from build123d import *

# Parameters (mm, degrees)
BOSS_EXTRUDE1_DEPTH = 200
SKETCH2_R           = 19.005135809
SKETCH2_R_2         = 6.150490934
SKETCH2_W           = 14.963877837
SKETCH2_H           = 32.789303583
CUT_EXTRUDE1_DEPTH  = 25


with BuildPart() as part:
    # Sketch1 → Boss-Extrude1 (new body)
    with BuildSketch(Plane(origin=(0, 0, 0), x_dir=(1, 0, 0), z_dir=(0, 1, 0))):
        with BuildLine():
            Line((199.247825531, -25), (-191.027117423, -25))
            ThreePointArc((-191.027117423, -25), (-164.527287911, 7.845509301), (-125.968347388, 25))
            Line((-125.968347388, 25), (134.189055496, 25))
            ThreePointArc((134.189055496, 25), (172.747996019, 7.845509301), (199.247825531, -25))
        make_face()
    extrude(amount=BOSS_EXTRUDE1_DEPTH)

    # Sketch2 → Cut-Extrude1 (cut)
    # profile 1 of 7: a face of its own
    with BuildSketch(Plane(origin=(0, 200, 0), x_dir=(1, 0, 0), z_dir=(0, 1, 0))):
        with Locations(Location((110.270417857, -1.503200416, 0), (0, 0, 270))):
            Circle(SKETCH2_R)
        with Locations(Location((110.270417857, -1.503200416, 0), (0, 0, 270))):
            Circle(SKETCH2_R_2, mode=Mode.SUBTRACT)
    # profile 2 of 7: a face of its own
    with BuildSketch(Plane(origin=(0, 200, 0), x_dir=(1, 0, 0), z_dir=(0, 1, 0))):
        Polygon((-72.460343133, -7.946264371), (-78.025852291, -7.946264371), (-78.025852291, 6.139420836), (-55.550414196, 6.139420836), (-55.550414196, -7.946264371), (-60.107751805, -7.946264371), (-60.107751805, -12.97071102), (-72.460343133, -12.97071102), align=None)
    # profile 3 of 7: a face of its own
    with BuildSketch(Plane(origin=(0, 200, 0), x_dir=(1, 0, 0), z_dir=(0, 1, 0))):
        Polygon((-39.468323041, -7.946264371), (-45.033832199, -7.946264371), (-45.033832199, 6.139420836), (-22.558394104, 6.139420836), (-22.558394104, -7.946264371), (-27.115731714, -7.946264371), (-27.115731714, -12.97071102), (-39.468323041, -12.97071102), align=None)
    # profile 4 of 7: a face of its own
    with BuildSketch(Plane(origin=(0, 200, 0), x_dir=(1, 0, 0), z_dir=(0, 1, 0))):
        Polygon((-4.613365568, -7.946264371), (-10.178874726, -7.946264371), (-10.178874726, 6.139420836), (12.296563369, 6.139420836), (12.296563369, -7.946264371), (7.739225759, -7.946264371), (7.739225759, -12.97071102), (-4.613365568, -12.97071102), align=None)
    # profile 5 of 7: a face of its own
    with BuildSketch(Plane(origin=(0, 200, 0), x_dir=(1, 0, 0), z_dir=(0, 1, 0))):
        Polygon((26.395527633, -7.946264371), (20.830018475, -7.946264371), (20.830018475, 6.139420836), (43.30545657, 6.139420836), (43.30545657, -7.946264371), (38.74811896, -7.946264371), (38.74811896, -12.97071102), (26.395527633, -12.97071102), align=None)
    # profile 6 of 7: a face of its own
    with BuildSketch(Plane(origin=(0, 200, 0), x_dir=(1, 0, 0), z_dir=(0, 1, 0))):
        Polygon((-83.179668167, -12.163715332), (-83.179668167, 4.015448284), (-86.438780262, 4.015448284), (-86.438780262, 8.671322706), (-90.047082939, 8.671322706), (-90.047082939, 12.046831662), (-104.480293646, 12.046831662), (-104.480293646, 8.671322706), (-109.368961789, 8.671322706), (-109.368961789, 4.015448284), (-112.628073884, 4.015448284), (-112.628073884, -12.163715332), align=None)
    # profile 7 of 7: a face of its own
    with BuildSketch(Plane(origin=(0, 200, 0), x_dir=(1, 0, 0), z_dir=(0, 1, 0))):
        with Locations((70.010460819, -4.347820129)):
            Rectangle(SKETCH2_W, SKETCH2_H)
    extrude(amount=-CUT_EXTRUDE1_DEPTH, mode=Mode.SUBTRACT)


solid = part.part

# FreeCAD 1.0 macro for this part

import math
import FreeCAD as App
import Part
import Sketcher
from FreeCAD import Vector

doc = App.newDocument("Part")
body = doc.addObject("PartDesign::Body", "Body")

# Sketch on XZ plane
sketch1 = body.newObject("Sketcher::SketchObject", "Sketch")
sketch1.AttachmentSupport = (doc.getObject("XZ_Plane"), [""])
sketch1.MapMode = "FlatFace"
sketch1.addGeometry([
    Part.LineSegment(Vector(-191, 25, 0), Vector(199, 25, 0)),
    Part.ArcOfCircle(Part.Circle(Vector(118, 64, 0), Vector(0, 0, 1), 90), math.radians(-80), math.radians(-25)),
    Part.LineSegment(Vector(134, -25, 0), Vector(-126, -25, 0)),
    Part.ArcOfCircle(Part.Circle(Vector(-110, 64, 0), Vector(0, 0, 1), 90), math.radians(-155), math.radians(-100)),
], False)
sketch1.addConstraint([
    Sketcher.Constraint("Coincident", 0, 2, 1, 2),
    Sketcher.Constraint("Coincident", 1, 1, 2, 1),
    Sketcher.Constraint("Coincident", 2, 2, 3, 2),
    Sketcher.Constraint("Coincident", 3, 1, 0, 1),
    Sketcher.Constraint("Horizontal", 0),
    Sketcher.Constraint("Horizontal", 2),
    Sketcher.Constraint("Equal", 1, 3),
    Sketcher.Constraint("Horizontal", 1, 3, 3, 3),
    Sketcher.Constraint("Radius", 1, 90.0),
    Sketcher.Constraint("DistanceY", -1, 1, 0, 2, 25.0),
    Sketcher.Constraint("DistanceY", 1, 1, -1, 1, 25.0),
    Sketcher.Constraint("DistanceX", 0, 1, 0, 2, 390.274943),
    Sketcher.Constraint("DistanceX", 2, 2, 2, 1, 260.157403),
    Sketcher.Constraint("DistanceX", -1, 1, 1, 3, 117.905186),
])
pad1 = body.newObject("PartDesign::Pad", "Pad")
pad1.Profile = sketch1
pad1.Length = 200
pad1.Reversed = True

# Sketch on XZ plane
sketch2 = body.newObject("Sketcher::SketchObject", "Sketch001")
sketch2.AttachmentSupport = (doc.getObject("XZ_Plane"), [""])
sketch2.MapMode = "FlatFace"
sketch2.AttachmentOffset = App.Placement(Vector(0, 0, -200), App.Rotation())
sketch2.addGeometry([
    Part.Circle(Vector(110.3, 1.5, 0), Vector(0, 0, 1), 19),  # 0
    Part.Circle(Vector(110.3, 1.5, 0), Vector(0, 0, 1), 6.2),  # 1
    Part.LineSegment(Vector(-78, 7.9, 0), Vector(-72.5, 7.9, 0)),  # 2
    Part.LineSegment(Vector(-72.5, 7.9, 0), Vector(-72.5, 13, 0)),  # 3
    Part.LineSegment(Vector(-72.5, 13, 0), Vector(-60.1, 13, 0)),  # 4
    Part.LineSegment(Vector(-60.1, 13, 0), Vector(-60.1, 7.9, 0)),  # 5
    Part.LineSegment(Vector(-60.1, 7.9, 0), Vector(-55.6, 7.9, 0)),  # 6
    Part.LineSegment(Vector(-55.6, 7.9, 0), Vector(-55.6, -6.1, 0)),  # 7
    Part.LineSegment(Vector(-55.6, -6.1, 0), Vector(-78, -6.1, 0)),  # 8
    Part.LineSegment(Vector(-78, -6.1, 0), Vector(-78, 7.9, 0)),  # 9
    Part.LineSegment(Vector(-45, 7.9, 0), Vector(-39.5, 7.9, 0)),  # 10
    Part.LineSegment(Vector(-39.5, 7.9, 0), Vector(-39.5, 13, 0)),  # 11
    Part.LineSegment(Vector(-39.5, 13, 0), Vector(-27.1, 13, 0)),  # 12
    Part.LineSegment(Vector(-27.1, 13, 0), Vector(-27.1, 7.9, 0)),  # 13
    Part.LineSegment(Vector(-27.1, 7.9, 0), Vector(-22.6, 7.9, 0)),  # 14
    Part.LineSegment(Vector(-22.6, 7.9, 0), Vector(-22.6, -6.1, 0)),  # 15
    Part.LineSegment(Vector(-22.6, -6.1, 0), Vector(-45, -6.1, 0)),  # 16
    Part.LineSegment(Vector(-45, -6.1, 0), Vector(-45, 7.9, 0)),  # 17
    Part.LineSegment(Vector(-10.2, 7.9, 0), Vector(-4.6, 7.9, 0)),  # 18
    Part.LineSegment(Vector(-4.6, 7.9, 0), Vector(-4.6, 13, 0)),  # 19
    Part.LineSegment(Vector(-4.6, 13, 0), Vector(7.7, 13, 0)),  # 20
    Part.LineSegment(Vector(7.7, 13, 0), Vector(7.7, 7.9, 0)),  # 21
    Part.LineSegment(Vector(7.7, 7.9, 0), Vector(12.3, 7.9, 0)),  # 22
    Part.LineSegment(Vector(12.3, 7.9, 0), Vector(12.3, -6.1, 0)),  # 23
    Part.LineSegment(Vector(12.3, -6.1, 0), Vector(-10.2, -6.1, 0)),  # 24
    Part.LineSegment(Vector(-10.2, -6.1, 0), Vector(-10.2, 7.9, 0)),  # 25
    Part.LineSegment(Vector(20.8, 7.9, 0), Vector(26.4, 7.9, 0)),  # 26
    Part.LineSegment(Vector(26.4, 7.9, 0), Vector(26.4, 13, 0)),  # 27
    Part.LineSegment(Vector(26.4, 13, 0), Vector(38.7, 13, 0)),  # 28
    Part.LineSegment(Vector(38.7, 13, 0), Vector(38.7, 7.9, 0)),  # 29
    Part.LineSegment(Vector(38.7, 7.9, 0), Vector(43.3, 7.9, 0)),  # 30
    Part.LineSegment(Vector(43.3, 7.9, 0), Vector(43.3, -6.1, 0)),  # 31
    Part.LineSegment(Vector(43.3, -6.1, 0), Vector(20.8, -6.1, 0)),  # 32
    Part.LineSegment(Vector(20.8, -6.1, 0), Vector(20.8, 7.9, 0)),  # 33
    Part.LineSegment(Vector(-83.2, 12.2, 0), Vector(-83.2, -4, 0)),  # 34
    Part.LineSegment(Vector(-83.2, -4, 0), Vector(-86.4, -4, 0)),  # 35
    Part.LineSegment(Vector(-86.4, -4, 0), Vector(-86.4, -8.7, 0)),  # 36
    Part.LineSegment(Vector(-86.4, -8.7, 0), Vector(-90, -8.7, 0)),  # 37
    Part.LineSegment(Vector(-90, -8.7, 0), Vector(-90, -12, 0)),  # 38
    Part.LineSegment(Vector(-90, -12, 0), Vector(-104.5, -12, 0)),  # 39
    Part.LineSegment(Vector(-104.5, -12, 0), Vector(-104.5, -8.7, 0)),  # 40
    Part.LineSegment(Vector(-104.5, -8.7, 0), Vector(-109.4, -8.7, 0)),  # 41
    Part.LineSegment(Vector(-109.4, -8.7, 0), Vector(-109.4, -4, 0)),  # 42
    Part.LineSegment(Vector(-109.4, -4, 0), Vector(-112.6, -4, 0)),  # 43
    Part.LineSegment(Vector(-112.6, -4, 0), Vector(-112.6, 12.2, 0)),  # 44
    Part.LineSegment(Vector(-112.6, 12.2, 0), Vector(-83.2, 12.2, 0)),  # 45
    Part.LineSegment(Vector(62.5, -12, 0), Vector(62.5, 20.7, 0)),  # 46
    Part.LineSegment(Vector(62.5, 20.7, 0), Vector(77.5, 20.7, 0)),  # 47
    Part.LineSegment(Vector(77.5, 20.7, 0), Vector(77.5, -12, 0)),  # 48
    Part.LineSegment(Vector(77.5, -12, 0), Vector(62.5, -12, 0)),  # 49
], False)
sketch2.addConstraint([
    Sketcher.Constraint("Coincident", 2, 2, 3, 1),
    Sketcher.Constraint("Coincident", 3, 2, 4, 1),
    Sketcher.Constraint("Coincident", 4, 2, 5, 1),
    Sketcher.Constraint("Coincident", 5, 2, 6, 1),
    Sketcher.Constraint("Coincident", 6, 2, 7, 1),
    Sketcher.Constraint("Coincident", 7, 2, 8, 1),
    Sketcher.Constraint("Coincident", 8, 2, 9, 1),
    Sketcher.Constraint("Coincident", 9, 2, 2, 1),
    Sketcher.Constraint("Coincident", 10, 2, 11, 1),
    Sketcher.Constraint("Coincident", 11, 2, 12, 1),
    Sketcher.Constraint("Coincident", 12, 2, 13, 1),
    Sketcher.Constraint("Coincident", 13, 2, 14, 1),
    Sketcher.Constraint("Coincident", 14, 2, 15, 1),
    Sketcher.Constraint("Coincident", 15, 2, 16, 1),
    Sketcher.Constraint("Coincident", 16, 2, 17, 1),
    Sketcher.Constraint("Coincident", 17, 2, 10, 1),
    Sketcher.Constraint("Coincident", 18, 2, 19, 1),
    Sketcher.Constraint("Coincident", 19, 2, 20, 1),
    Sketcher.Constraint("Coincident", 20, 2, 21, 1),
    Sketcher.Constraint("Coincident", 21, 2, 22, 1),
    Sketcher.Constraint("Coincident", 22, 2, 23, 1),
    Sketcher.Constraint("Coincident", 23, 2, 24, 1),
    Sketcher.Constraint("Coincident", 24, 2, 25, 1),
    Sketcher.Constraint("Coincident", 25, 2, 18, 1),
    Sketcher.Constraint("Coincident", 26, 2, 27, 1),
    Sketcher.Constraint("Coincident", 27, 2, 28, 1),
    Sketcher.Constraint("Coincident", 28, 2, 29, 1),
    Sketcher.Constraint("Coincident", 29, 2, 30, 1),
    Sketcher.Constraint("Coincident", 30, 2, 31, 1),
    Sketcher.Constraint("Coincident", 31, 2, 32, 1),
    Sketcher.Constraint("Coincident", 32, 2, 33, 1),
    Sketcher.Constraint("Coincident", 33, 2, 26, 1),
    Sketcher.Constraint("Coincident", 34, 2, 35, 1),
    Sketcher.Constraint("Coincident", 35, 2, 36, 1),
    Sketcher.Constraint("Coincident", 36, 2, 37, 1),
    Sketcher.Constraint("Coincident", 37, 2, 38, 1),
    Sketcher.Constraint("Coincident", 38, 2, 39, 1),
    Sketcher.Constraint("Coincident", 39, 2, 40, 1),
    Sketcher.Constraint("Coincident", 40, 2, 41, 1),
    Sketcher.Constraint("Coincident", 41, 2, 42, 1),
    Sketcher.Constraint("Coincident", 42, 2, 43, 1),
    Sketcher.Constraint("Coincident", 43, 2, 44, 1),
    Sketcher.Constraint("Coincident", 44, 2, 45, 1),
    Sketcher.Constraint("Coincident", 45, 2, 34, 1),
    Sketcher.Constraint("Coincident", 46, 2, 47, 1),
    Sketcher.Constraint("Coincident", 47, 2, 48, 1),
    Sketcher.Constraint("Coincident", 48, 2, 49, 1),
    Sketcher.Constraint("Coincident", 49, 2, 46, 1),
    Sketcher.Constraint("Horizontal", 2),
    Sketcher.Constraint("Vertical", 3),
    Sketcher.Constraint("Horizontal", 4),
    Sketcher.Constraint("Vertical", 5),
    Sketcher.Constraint("Horizontal", 6),
    Sketcher.Constraint("Vertical", 7),
    Sketcher.Constraint("Horizontal", 8),
    Sketcher.Constraint("Vertical", 9),
    Sketcher.Constraint("Horizontal", 10),
    Sketcher.Constraint("Vertical", 11),
    Sketcher.Constraint("Horizontal", 12),
    Sketcher.Constraint("Vertical", 13),
    Sketcher.Constraint("Horizontal", 14),
    Sketcher.Constraint("Vertical", 15),
    Sketcher.Constraint("Horizontal", 16),
    Sketcher.Constraint("Vertical", 17),
    Sketcher.Constraint("Horizontal", 18),
    Sketcher.Constraint("Vertical", 19),
    Sketcher.Constraint("Horizontal", 20),
    Sketcher.Constraint("Vertical", 21),
    Sketcher.Constraint("Horizontal", 22),
    Sketcher.Constraint("Vertical", 23),
    Sketcher.Constraint("Horizontal", 24),
    Sketcher.Constraint("Vertical", 25),
    Sketcher.Constraint("Horizontal", 26),
    Sketcher.Constraint("Vertical", 27),
    Sketcher.Constraint("Horizontal", 28),
    Sketcher.Constraint("Vertical", 29),
    Sketcher.Constraint("Horizontal", 30),
    Sketcher.Constraint("Vertical", 31),
    Sketcher.Constraint("Horizontal", 32),
    Sketcher.Constraint("Vertical", 33),
    Sketcher.Constraint("Vertical", 34),
    Sketcher.Constraint("Horizontal", 35),
    Sketcher.Constraint("Vertical", 36),
    Sketcher.Constraint("Horizontal", 37),
    Sketcher.Constraint("Vertical", 38),
    Sketcher.Constraint("Horizontal", 39),
    Sketcher.Constraint("Vertical", 40),
    Sketcher.Constraint("Horizontal", 41),
    Sketcher.Constraint("Vertical", 42),
    Sketcher.Constraint("Horizontal", 43),
    Sketcher.Constraint("Vertical", 44),
    Sketcher.Constraint("Horizontal", 45),
    Sketcher.Constraint("Vertical", 46),
    Sketcher.Constraint("Horizontal", 47),
    Sketcher.Constraint("Vertical", 48),
    Sketcher.Constraint("Horizontal", 49),
    Sketcher.Constraint("Coincident", 1, 3, 0, 3),
    Sketcher.Constraint("Horizontal", 2, 2, 5, 2),
    Sketcher.Constraint("Horizontal", 9, 2, 10, 2),
    Sketcher.Constraint("Horizontal", 4, 2, 11, 2),
    Sketcher.Constraint("Horizontal", 10, 2, 13, 2),
    Sketcher.Constraint("Horizontal", 8, 2, 15, 2),
    Sketcher.Constraint("Horizontal", 17, 2, 18, 2),
    Sketcher.Constraint("Horizontal", 12, 2, 19, 2),
    Sketcher.Constraint("Horizontal", 18, 2, 21, 2),
    Sketcher.Constraint("Horizontal", 16, 2, 23, 2),
    Sketcher.Constraint("Horizontal", 25, 2, 26, 2),
    Sketcher.Constraint("Horizontal", 20, 2, 27, 2),
    Sketcher.Constraint("Horizontal", 26, 2, 29, 2),
    Sketcher.Constraint("Horizontal", 24, 2, 31, 2),
    Sketcher.Constraint("Horizontal", 37, 2, 40, 2),
    Sketcher.Constraint("Horizontal", 35, 2, 42, 2),
    Sketcher.Constraint("Horizontal", 39, 2, 48, 2),
    Sketcher.Constraint("Equal", 2, 10),
    Sketcher.Constraint("Equal", 4, 12),
    Sketcher.Constraint("Equal", 6, 14),
    Sketcher.Constraint("Equal", 10, 18),
    Sketcher.Constraint("Equal", 12, 20),
    Sketcher.Constraint("Equal", 14, 22),
    Sketcher.Constraint("Equal", 18, 26),
    Sketcher.Constraint("Equal", 20, 28),
    Sketcher.Constraint("Equal", 22, 30),
    Sketcher.Constraint("Equal", 35, 43),
    Sketcher.Constraint("Diameter", 0, 38.010272),
    Sketcher.Constraint("Diameter", 1, 12.300982),
    Sketcher.Constraint("DistanceX", 2, 1, 2, 2, 5.565509),
    Sketcher.Constraint("DistanceX", 4, 1, 4, 2, 12.352591),
    Sketcher.Constraint("DistanceX", 8, 2, 8, 1, 22.475438),
    Sketcher.Constraint("DistanceX", 39, 2, 39, 1, 14.433211),
    Sketcher.Constraint("DistanceX", 41, 2, 41, 1, 4.888668),
    Sketcher.Constraint("DistanceY", 38, 2, 38, 1, 3.375509),
    Sketcher.Constraint("DistanceY", -1, 1, 0, 3, 1.5032),
    Sketcher.Constraint("DistanceX", -1, 1, 47, 2, 77.4924),
    Sketcher.Constraint("DistanceX", 21, 2, 26, 2, 18.656302),
    Sketcher.Constraint("DistanceY", 36, 2, 8, 2, 2.531902),
    Sketcher.Constraint("DistanceX", 35, 2, 35, 1, 3.259112),
    Sketcher.Constraint("DistanceX", 37, 2, 37, 1, 3.608303),
    Sketcher.Constraint("DistanceX", 47, 1, 47, 2, 14.963878),
    Sketcher.Constraint("DistanceY", 3, 1, 3, 2, 5.024447),
    Sketcher.Constraint("DistanceY", 7, 2, 7, 1, 14.085685),
    Sketcher.Constraint("DistanceY", 34, 2, 34, 1, 16.179164),
    Sketcher.Constraint("DistanceY", 36, 2, 36, 1, 4.655874),
    Sketcher.Constraint("DistanceY", 46, 1, 46, 2, 32.789304),
    Sketcher.Constraint("DistanceY", -1, 1, 3, 2, 12.970711),
    Sketcher.Constraint("DistanceX", 4, 2, -1, 1, 60.107752),
    Sketcher.Constraint("DistanceX", 12, 2, -1, 1, 27.115732),
    Sketcher.Constraint("DistanceX", -1, 1, 28, 2, 38.748119),
    Sketcher.Constraint("DistanceX", 34, 2, -1, 1, 83.179668),
    Sketcher.Constraint("DistanceX", 2, 2, 0, 3, 182.730761),
])
pocket1 = body.newObject("PartDesign::Pocket", "Pocket")
pocket1.Profile = sketch2
pocket1.Length = 25
pocket1.Reversed = True

doc.recompute()
